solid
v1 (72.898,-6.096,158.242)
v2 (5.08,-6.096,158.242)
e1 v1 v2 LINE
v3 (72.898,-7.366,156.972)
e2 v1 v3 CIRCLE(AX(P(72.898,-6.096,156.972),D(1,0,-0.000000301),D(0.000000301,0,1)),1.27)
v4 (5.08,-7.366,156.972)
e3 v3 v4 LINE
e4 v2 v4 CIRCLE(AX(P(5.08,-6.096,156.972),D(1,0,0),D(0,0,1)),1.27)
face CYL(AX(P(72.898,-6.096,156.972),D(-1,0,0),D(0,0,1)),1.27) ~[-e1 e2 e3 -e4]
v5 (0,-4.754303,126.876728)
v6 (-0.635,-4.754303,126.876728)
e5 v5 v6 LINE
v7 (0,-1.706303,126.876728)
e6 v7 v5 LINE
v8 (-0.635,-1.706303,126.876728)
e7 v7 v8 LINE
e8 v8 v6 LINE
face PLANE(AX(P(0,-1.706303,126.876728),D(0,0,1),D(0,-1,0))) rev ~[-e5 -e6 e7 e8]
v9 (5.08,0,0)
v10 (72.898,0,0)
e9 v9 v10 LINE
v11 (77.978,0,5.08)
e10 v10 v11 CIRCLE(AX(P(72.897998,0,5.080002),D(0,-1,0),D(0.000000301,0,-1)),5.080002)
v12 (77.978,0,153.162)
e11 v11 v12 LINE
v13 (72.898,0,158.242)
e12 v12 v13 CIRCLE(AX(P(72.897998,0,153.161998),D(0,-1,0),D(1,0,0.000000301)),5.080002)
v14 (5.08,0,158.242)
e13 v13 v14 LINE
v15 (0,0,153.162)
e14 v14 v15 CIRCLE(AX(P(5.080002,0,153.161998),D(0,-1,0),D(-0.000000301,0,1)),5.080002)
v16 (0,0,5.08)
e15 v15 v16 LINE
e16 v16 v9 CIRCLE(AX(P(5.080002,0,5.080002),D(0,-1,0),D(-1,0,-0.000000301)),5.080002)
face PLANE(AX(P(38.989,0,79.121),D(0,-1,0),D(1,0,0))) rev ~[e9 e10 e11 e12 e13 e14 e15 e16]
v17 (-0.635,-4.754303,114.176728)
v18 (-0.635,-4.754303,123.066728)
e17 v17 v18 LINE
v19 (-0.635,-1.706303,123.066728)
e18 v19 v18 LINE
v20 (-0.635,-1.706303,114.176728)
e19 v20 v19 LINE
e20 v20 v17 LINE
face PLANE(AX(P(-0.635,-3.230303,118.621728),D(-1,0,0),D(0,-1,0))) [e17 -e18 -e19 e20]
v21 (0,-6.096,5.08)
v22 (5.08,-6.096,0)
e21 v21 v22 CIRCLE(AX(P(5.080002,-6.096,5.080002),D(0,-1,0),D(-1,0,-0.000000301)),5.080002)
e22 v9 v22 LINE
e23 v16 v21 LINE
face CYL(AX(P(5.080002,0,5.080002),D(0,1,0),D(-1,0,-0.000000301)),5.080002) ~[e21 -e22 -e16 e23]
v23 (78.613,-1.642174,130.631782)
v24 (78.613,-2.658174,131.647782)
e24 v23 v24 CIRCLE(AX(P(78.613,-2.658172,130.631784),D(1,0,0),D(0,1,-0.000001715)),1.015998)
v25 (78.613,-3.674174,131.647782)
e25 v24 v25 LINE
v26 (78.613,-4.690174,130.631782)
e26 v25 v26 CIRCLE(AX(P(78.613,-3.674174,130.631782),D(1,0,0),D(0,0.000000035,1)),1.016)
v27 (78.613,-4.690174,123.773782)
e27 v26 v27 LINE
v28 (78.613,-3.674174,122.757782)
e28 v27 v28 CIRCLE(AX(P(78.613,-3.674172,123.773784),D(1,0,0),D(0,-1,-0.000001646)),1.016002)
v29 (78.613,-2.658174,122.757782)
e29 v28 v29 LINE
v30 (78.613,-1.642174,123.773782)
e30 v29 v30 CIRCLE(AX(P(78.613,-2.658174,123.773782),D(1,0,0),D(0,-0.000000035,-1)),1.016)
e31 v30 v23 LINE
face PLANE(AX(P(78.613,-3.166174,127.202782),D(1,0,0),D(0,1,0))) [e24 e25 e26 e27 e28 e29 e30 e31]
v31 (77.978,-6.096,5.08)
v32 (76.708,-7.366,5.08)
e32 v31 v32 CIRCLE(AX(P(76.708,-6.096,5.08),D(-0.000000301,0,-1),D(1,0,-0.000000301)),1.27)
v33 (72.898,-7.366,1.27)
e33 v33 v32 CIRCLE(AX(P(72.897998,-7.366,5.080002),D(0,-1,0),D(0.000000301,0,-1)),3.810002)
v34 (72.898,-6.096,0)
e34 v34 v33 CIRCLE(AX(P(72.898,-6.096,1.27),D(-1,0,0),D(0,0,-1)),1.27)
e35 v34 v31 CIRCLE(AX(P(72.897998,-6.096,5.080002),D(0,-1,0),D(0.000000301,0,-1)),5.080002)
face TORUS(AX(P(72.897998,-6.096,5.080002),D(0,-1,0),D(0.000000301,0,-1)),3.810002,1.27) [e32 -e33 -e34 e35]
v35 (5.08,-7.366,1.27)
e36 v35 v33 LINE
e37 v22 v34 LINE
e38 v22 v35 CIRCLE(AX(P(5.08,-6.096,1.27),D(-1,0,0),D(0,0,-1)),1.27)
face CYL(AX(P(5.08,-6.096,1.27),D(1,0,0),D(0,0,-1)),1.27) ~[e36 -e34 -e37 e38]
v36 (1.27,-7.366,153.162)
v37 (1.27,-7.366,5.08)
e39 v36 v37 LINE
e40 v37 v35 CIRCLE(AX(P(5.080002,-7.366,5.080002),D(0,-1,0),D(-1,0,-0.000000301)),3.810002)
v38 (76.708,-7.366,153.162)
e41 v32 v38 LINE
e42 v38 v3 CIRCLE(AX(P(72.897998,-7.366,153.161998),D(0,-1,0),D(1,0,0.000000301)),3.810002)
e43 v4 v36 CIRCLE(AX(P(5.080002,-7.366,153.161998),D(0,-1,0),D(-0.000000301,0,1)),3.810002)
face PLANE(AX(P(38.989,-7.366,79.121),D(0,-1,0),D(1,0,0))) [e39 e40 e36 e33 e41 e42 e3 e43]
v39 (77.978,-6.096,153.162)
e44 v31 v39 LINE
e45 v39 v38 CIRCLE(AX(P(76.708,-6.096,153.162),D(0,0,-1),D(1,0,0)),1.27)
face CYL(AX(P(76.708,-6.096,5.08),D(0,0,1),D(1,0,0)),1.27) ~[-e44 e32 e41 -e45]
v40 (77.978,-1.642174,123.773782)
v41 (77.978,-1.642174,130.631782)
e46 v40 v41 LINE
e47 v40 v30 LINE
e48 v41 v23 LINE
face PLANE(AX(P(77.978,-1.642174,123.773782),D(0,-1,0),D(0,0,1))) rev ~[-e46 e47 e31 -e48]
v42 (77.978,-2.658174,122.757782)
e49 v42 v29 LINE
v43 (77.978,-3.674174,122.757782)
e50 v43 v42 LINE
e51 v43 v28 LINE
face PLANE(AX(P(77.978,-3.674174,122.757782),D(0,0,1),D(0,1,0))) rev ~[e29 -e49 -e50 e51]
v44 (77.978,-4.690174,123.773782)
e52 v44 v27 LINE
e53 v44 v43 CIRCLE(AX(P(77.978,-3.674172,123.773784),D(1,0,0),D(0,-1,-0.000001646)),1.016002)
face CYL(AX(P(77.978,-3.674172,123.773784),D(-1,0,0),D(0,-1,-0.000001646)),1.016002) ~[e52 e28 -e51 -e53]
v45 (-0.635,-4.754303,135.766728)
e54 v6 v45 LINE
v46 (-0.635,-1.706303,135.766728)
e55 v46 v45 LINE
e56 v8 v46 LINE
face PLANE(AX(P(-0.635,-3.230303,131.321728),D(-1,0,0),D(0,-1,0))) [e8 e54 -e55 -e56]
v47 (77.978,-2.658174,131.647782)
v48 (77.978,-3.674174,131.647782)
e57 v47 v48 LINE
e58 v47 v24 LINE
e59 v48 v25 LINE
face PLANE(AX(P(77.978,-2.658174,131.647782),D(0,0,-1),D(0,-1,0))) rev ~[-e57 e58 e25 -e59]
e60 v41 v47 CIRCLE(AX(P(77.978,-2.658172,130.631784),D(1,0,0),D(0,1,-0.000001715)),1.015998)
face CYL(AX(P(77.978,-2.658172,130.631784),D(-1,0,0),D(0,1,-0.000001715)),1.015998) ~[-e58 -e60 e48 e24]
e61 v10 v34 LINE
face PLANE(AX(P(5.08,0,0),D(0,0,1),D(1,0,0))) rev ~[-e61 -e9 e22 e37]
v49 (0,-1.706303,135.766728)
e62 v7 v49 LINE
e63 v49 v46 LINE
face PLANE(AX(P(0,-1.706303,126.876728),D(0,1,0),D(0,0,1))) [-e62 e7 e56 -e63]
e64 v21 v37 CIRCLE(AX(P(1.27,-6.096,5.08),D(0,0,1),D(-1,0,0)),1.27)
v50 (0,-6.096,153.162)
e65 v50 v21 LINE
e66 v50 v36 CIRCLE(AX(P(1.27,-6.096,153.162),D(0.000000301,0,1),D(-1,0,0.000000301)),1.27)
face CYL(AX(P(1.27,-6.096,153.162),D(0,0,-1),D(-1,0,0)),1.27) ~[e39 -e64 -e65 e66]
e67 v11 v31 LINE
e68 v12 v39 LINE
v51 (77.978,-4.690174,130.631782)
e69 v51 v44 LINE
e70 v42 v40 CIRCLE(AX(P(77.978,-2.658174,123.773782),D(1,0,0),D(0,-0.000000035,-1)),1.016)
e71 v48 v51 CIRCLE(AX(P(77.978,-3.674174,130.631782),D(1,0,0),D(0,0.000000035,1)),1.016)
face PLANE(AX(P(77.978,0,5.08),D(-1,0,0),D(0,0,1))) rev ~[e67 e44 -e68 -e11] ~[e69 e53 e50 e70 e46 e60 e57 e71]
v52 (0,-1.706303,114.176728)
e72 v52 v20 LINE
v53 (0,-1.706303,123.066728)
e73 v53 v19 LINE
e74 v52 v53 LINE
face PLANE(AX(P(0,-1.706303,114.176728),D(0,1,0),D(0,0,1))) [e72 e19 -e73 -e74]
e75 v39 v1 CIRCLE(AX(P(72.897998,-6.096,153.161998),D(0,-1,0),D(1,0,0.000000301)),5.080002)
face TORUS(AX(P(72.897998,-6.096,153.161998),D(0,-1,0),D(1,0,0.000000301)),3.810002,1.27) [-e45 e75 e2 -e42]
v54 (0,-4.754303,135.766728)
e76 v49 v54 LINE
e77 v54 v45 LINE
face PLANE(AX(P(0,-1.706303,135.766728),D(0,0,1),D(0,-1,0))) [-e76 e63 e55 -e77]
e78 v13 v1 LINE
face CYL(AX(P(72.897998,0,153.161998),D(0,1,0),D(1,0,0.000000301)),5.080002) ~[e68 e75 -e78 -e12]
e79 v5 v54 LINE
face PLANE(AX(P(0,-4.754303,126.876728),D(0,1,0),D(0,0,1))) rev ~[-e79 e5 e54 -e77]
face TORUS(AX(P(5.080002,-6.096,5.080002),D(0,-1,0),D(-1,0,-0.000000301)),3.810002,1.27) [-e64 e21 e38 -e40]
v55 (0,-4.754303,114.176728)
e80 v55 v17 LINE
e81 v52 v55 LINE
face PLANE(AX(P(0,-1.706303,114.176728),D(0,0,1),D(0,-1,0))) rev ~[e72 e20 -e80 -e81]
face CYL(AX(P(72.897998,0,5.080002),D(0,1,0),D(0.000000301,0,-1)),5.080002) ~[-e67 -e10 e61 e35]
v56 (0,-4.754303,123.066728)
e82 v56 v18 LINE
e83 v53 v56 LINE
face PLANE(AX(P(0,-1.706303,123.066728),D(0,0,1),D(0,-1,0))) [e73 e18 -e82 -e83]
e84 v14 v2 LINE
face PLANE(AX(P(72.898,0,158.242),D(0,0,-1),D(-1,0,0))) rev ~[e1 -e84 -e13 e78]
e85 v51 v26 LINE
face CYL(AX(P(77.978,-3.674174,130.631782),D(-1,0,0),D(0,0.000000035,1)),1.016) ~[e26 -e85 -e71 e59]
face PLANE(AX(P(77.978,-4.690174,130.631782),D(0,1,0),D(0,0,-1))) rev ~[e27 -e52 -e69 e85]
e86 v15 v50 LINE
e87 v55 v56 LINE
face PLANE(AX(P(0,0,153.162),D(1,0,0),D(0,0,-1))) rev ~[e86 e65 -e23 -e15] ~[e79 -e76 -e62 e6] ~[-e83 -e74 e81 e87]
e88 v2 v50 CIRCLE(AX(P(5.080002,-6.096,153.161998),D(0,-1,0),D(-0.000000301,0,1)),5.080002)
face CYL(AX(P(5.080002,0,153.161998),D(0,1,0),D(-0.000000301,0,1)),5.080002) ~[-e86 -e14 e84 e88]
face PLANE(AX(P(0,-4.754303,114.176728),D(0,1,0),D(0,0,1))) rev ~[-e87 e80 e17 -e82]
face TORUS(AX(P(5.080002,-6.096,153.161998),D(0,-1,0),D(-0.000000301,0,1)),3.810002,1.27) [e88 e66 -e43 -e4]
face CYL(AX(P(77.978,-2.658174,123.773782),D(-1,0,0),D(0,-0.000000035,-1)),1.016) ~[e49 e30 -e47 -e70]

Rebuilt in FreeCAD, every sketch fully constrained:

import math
import FreeCAD as App
import Part
import Sketcher
from FreeCAD import Vector
Q = App.Units.Quantity


def edges_at(feature, points):
    """Names of the edges that pass closest to the given points."""
    edges = feature.Shape.Edges
    near = lambda p: min(range(len(edges)), key=lambda i: edges[i].distToShape(Part.Vertex(*p))[0])
    return sorted({f"Edge{near(p) + 1}" for p in points})

doc = App.newDocument("Part")
body = doc.addObject("PartDesign::Body", "Body")

# Sketch on XZ plane
sketch1 = body.newObject("Sketcher::SketchObject", "Sketch")
sketch1.AttachmentSupport = (doc.getObject("XZ_Plane"), [""])
sketch1.MapMode = "FlatFace"
sketch1.addGeometry(Part.LineSegment(Vector(0, 153, 0), Vector(0, 5, 0)), False)
sketch1.addGeometry(Part.ArcOfCircle(Part.Circle(Vector(5, 5, 0), Vector(0, 0, 1), 5), math.radians(-180), math.radians(-90)), False)
sketch1.addGeometry(Part.LineSegment(Vector(5, 0, 0), Vector(73, 0, 0)), False)
sketch1.addGeometry(Part.ArcOfCircle(Part.Circle(Vector(73, 5, 0), Vector(0, 0, 1), 5), math.radians(-90), math.radians(0)), False)
sketch1.addGeometry(Part.LineSegment(Vector(78, 5, 0), Vector(78, 153, 0)), False)
sketch1.addGeometry(Part.ArcOfCircle(Part.Circle(Vector(73, 153, 0), Vector(0, 0, 1), 5), math.radians(0), math.radians(90)), False)
sketch1.addGeometry(Part.LineSegment(Vector(73, 158, 0), Vector(5, 158, 0)), False)
sketch1.addGeometry(Part.ArcOfCircle(Part.Circle(Vector(5, 153, 0), Vector(0, 0, 1), 5), math.radians(90), math.radians(180)), False)
sketch1.addConstraint(Sketcher.Constraint("Tangent", 0, 2, 1, 1))
sketch1.addConstraint(Sketcher.Constraint("Tangent", 1, 2, 2, 1))
sketch1.addConstraint(Sketcher.Constraint("Tangent", 2, 2, 3, 1))
sketch1.addConstraint(Sketcher.Constraint("Tangent", 3, 2, 4, 1))
sketch1.addConstraint(Sketcher.Constraint("Tangent", 4, 2, 5, 1))
sketch1.addConstraint(Sketcher.Constraint("Tangent", 5, 2, 6, 1))
sketch1.addConstraint(Sketcher.Constraint("Tangent", 6, 2, 7, 1))
sketch1.addConstraint(Sketcher.Constraint("Tangent", 7, 2, 0, 1))
sketch1.addConstraint(Sketcher.Constraint("Vertical", 0))
sketch1.addConstraint(Sketcher.Constraint("Horizontal", 2))
sketch1.addConstraint(Sketcher.Constraint("Vertical", 4))
sketch1.addConstraint(Sketcher.Constraint("Horizontal", 6))
sketch1.addConstraint(Sketcher.Constraint("Equal", 1, 3))
sketch1.addConstraint(Sketcher.Constraint("Equal", 3, 5))
sketch1.addConstraint(Sketcher.Constraint("Equal", 5, 7))
sketch1.addConstraint(Sketcher.Constraint("PointOnObject", 0, 2, -2))
sketch1.addConstraint(Sketcher.Constraint("PointOnObject", 1, 2, -1))
sketch1.addConstraint(Sketcher.Constraint("Radius", 1, Q("0.2000001 in")))
sketch1.addConstraint(Sketcher.Constraint("DistanceX", 2, 1, 2, 2, Q("2.67 in")))
sketch1.addConstraint(Sketcher.Constraint("DistanceY", 0, 2, 0, 1, Q("5.83 in")))
pad1 = body.newObject("PartDesign::Pad", "Pad")
pad1.Profile = sketch1
pad1.Length = Q("0.29 in")
doc.recompute()

fillet = body.newObject("PartDesign::Fillet", "Fillet")
fillet.Base = (pad1, edges_at(pad1, [(38.989, -7.366, 0)]))
fillet.Radius = Q("0.05 in")

# Sketch on YZ plane
sketch2 = body.newObject("Sketcher::SketchObject", "Sketch001")
sketch2.AttachmentSupport = (doc.getObject("YZ_Plane"), [""])
sketch2.MapMode = "FlatFace"
sketch2.AttachmentOffset = App.Placement(Vector(0, 0, 3.07 * 25.4), App.Rotation())
sketch2.addGeometry(Part.LineSegment(Vector(-2.7, 131.6, 0), Vector(-3.7, 131.6, 0)), False)
sketch2.addGeometry(Part.ArcOfCircle(Part.Circle(Vector(-3.7, 130.6, 0), Vector(0, 0, 1), 1), math.radians(90), math.radians(180)), False)
sketch2.addGeometry(Part.LineSegment(Vector(-4.7, 130.6, 0), Vector(-4.7, 123.8, 0)), False)
sketch2.addGeometry(Part.ArcOfCircle(Part.Circle(Vector(-3.7, 123.8, 0), Vector(0, 0, 1), 1), math.radians(-180), math.radians(-90)), False)
sketch2.addGeometry(Part.LineSegment(Vector(-3.7, 122.8, 0), Vector(-2.7, 122.8, 0)), False)
sketch2.addGeometry(Part.ArcOfCircle(Part.Circle(Vector(-2.7, 123.8, 0), Vector(0, 0, 1), 1), math.radians(-90), math.radians(0)), False)
sketch2.addGeometry(Part.LineSegment(Vector(-1.6, 123.8, 0), Vector(-1.6, 130.6, 0)), False)
sketch2.addGeometry(Part.ArcOfCircle(Part.Circle(Vector(-2.7, 130.6, 0), Vector(0, 0, 1), 1), math.radians(0), math.radians(90)), False)
sketch2.addConstraint(Sketcher.Constraint("Tangent", 0, 2, 1, 1))
sketch2.addConstraint(Sketcher.Constraint("Tangent", 1, 2, 2, 1))
sketch2.addConstraint(Sketcher.Constraint("Tangent", 2, 2, 3, 1))
sketch2.addConstraint(Sketcher.Constraint("Tangent", 3, 2, 4, 1))
sketch2.addConstraint(Sketcher.Constraint("Tangent", 4, 2, 5, 1))
sketch2.addConstraint(Sketcher.Constraint("Tangent", 5, 2, 6, 1))
sketch2.addConstraint(Sketcher.Constraint("Tangent", 6, 2, 7, 1))
sketch2.addConstraint(Sketcher.Constraint("Tangent", 7, 2, 0, 1))
sketch2.addConstraint(Sketcher.Constraint("Horizontal", 0))
sketch2.addConstraint(Sketcher.Constraint("Vertical", 2))
sketch2.addConstraint(Sketcher.Constraint("Horizontal", 4))
sketch2.addConstraint(Sketcher.Constraint("Vertical", 6))
sketch2.addConstraint(Sketcher.Constraint("Equal", 1, 3))
sketch2.addConstraint(Sketcher.Constraint("Equal", 3, 5))
sketch2.addConstraint(Sketcher.Constraint("Equal", 5, 7))
sketch2.addConstraint(Sketcher.Constraint("Radius", 1, Q("0.04 in")))
sketch2.addConstraint(Sketcher.Constraint("DistanceX", 0, 2, 0, 1, Q("0.04 in")))
sketch2.addConstraint(Sketcher.Constraint("DistanceY", 2, 2, 2, 1, Q("0.27 in")))
sketch2.addConstraint(Sketcher.Constraint("DistanceY", -1, 1, 5, 3, 123.773782))
sketch2.addConstraint(Sketcher.Constraint("DistanceX", 1, 3, -1, 1, 3.674174))
pad2 = body.newObject("PartDesign::Pad", "Pad001")
pad2.Profile = sketch2
pad2.Length = Q("0.025 in")

# Sketch on YZ plane
sketch3 = body.newObject("Sketcher::SketchObject", "Sketch002")
sketch3.AttachmentSupport = (doc.getObject("YZ_Plane"), [""])
sketch3.MapMode = "FlatFace"
sketch3.addGeometry(Part.LineSegment(Vector(-1.7, 135.8, 0), Vector(-1.7, 126.9, 0)), False)
sketch3.addGeometry(Part.LineSegment(Vector(-1.7, 126.9, 0), Vector(-4.8, 126.9, 0)), False)
sketch3.addGeometry(Part.LineSegment(Vector(-4.8, 126.9, 0), Vector(-4.8, 135.8, 0)), False)
sketch3.addGeometry(Part.LineSegment(Vector(-4.8, 135.8, 0), Vector(-1.7, 135.8, 0)), False)
sketch3.addGeometry(Part.LineSegment(Vector(-1.7, 123.1, 0), Vector(-1.7, 114.2, 0)), False)
sketch3.addGeometry(Part.LineSegment(Vector(-1.7, 114.2, 0), Vector(-4.8, 114.2, 0)), False)
sketch3.addGeometry(Part.LineSegment(Vector(-4.8, 114.2, 0), Vector(-4.8, 123.1, 0)), False)
sketch3.addGeometry(Part.LineSegment(Vector(-4.8, 123.1, 0), Vector(-1.7, 123.1, 0)), False)
sketch3.addConstraint(Sketcher.Constraint("Coincident", 0, 2, 1, 1))
sketch3.addConstraint(Sketcher.Constraint("Coincident", 1, 2, 2, 1))
sketch3.addConstraint(Sketcher.Constraint("Coincident", 2, 2, 3, 1))
sketch3.addConstraint(Sketcher.Constraint("Coincident", 3, 2, 0, 1))
sketch3.addConstraint(Sketcher.Constraint("Coincident", 4, 2, 5, 1))
sketch3.addConstraint(Sketcher.Constraint("Coincident", 5, 2, 6, 1))
sketch3.addConstraint(Sketcher.Constraint("Coincident", 6, 2, 7, 1))
sketch3.addConstraint(Sketcher.Constraint("Coincident", 7, 2, 4, 1))
sketch3.addConstraint(Sketcher.Constraint("Vertical", 0))
sketch3.addConstraint(Sketcher.Constraint("Horizontal", 1))
sketch3.addConstraint(Sketcher.Constraint("Vertical", 2))
sketch3.addConstraint(Sketcher.Constraint("Horizontal", 3))
sketch3.addConstraint(Sketcher.Constraint("Vertical", 4))
sketch3.addConstraint(Sketcher.Constraint("Horizontal", 5))
sketch3.addConstraint(Sketcher.Constraint("Vertical", 6))
sketch3.addConstraint(Sketcher.Constraint("Horizontal", 7))
sketch3.addConstraint(Sketcher.Constraint("Vertical", 3, 2, 4, 2))
sketch3.addConstraint(Sketcher.Constraint("Vertical", 2, 2, 5, 2))
sketch3.addConstraint(Sketcher.Constraint("Equal", 2, 4))
sketch3.addConstraint(Sketcher.Constraint("DistanceX", 1, 2, 1, 1, Q("0.12 in")))
sketch3.addConstraint(Sketcher.Constraint("DistanceY", 0, 2, 0, 1, Q("0.35 in")))
sketch3.addConstraint(Sketcher.Constraint("DistanceY", 4, 2, 0, 2, Q("0.5 in")))
sketch3.addConstraint(Sketcher.Constraint("DistanceY", -1, 1, 0, 2, 126.876728))
sketch3.addConstraint(Sketcher.Constraint("DistanceX", 0, 2, -1, 1, 1.706303))
pad3 = body.newObject("PartDesign::Pad", "Pad002")
pad3.Profile = sketch3
pad3.Length = Q("0.025 in")
pad3.Reversed = True

doc.recompute()
